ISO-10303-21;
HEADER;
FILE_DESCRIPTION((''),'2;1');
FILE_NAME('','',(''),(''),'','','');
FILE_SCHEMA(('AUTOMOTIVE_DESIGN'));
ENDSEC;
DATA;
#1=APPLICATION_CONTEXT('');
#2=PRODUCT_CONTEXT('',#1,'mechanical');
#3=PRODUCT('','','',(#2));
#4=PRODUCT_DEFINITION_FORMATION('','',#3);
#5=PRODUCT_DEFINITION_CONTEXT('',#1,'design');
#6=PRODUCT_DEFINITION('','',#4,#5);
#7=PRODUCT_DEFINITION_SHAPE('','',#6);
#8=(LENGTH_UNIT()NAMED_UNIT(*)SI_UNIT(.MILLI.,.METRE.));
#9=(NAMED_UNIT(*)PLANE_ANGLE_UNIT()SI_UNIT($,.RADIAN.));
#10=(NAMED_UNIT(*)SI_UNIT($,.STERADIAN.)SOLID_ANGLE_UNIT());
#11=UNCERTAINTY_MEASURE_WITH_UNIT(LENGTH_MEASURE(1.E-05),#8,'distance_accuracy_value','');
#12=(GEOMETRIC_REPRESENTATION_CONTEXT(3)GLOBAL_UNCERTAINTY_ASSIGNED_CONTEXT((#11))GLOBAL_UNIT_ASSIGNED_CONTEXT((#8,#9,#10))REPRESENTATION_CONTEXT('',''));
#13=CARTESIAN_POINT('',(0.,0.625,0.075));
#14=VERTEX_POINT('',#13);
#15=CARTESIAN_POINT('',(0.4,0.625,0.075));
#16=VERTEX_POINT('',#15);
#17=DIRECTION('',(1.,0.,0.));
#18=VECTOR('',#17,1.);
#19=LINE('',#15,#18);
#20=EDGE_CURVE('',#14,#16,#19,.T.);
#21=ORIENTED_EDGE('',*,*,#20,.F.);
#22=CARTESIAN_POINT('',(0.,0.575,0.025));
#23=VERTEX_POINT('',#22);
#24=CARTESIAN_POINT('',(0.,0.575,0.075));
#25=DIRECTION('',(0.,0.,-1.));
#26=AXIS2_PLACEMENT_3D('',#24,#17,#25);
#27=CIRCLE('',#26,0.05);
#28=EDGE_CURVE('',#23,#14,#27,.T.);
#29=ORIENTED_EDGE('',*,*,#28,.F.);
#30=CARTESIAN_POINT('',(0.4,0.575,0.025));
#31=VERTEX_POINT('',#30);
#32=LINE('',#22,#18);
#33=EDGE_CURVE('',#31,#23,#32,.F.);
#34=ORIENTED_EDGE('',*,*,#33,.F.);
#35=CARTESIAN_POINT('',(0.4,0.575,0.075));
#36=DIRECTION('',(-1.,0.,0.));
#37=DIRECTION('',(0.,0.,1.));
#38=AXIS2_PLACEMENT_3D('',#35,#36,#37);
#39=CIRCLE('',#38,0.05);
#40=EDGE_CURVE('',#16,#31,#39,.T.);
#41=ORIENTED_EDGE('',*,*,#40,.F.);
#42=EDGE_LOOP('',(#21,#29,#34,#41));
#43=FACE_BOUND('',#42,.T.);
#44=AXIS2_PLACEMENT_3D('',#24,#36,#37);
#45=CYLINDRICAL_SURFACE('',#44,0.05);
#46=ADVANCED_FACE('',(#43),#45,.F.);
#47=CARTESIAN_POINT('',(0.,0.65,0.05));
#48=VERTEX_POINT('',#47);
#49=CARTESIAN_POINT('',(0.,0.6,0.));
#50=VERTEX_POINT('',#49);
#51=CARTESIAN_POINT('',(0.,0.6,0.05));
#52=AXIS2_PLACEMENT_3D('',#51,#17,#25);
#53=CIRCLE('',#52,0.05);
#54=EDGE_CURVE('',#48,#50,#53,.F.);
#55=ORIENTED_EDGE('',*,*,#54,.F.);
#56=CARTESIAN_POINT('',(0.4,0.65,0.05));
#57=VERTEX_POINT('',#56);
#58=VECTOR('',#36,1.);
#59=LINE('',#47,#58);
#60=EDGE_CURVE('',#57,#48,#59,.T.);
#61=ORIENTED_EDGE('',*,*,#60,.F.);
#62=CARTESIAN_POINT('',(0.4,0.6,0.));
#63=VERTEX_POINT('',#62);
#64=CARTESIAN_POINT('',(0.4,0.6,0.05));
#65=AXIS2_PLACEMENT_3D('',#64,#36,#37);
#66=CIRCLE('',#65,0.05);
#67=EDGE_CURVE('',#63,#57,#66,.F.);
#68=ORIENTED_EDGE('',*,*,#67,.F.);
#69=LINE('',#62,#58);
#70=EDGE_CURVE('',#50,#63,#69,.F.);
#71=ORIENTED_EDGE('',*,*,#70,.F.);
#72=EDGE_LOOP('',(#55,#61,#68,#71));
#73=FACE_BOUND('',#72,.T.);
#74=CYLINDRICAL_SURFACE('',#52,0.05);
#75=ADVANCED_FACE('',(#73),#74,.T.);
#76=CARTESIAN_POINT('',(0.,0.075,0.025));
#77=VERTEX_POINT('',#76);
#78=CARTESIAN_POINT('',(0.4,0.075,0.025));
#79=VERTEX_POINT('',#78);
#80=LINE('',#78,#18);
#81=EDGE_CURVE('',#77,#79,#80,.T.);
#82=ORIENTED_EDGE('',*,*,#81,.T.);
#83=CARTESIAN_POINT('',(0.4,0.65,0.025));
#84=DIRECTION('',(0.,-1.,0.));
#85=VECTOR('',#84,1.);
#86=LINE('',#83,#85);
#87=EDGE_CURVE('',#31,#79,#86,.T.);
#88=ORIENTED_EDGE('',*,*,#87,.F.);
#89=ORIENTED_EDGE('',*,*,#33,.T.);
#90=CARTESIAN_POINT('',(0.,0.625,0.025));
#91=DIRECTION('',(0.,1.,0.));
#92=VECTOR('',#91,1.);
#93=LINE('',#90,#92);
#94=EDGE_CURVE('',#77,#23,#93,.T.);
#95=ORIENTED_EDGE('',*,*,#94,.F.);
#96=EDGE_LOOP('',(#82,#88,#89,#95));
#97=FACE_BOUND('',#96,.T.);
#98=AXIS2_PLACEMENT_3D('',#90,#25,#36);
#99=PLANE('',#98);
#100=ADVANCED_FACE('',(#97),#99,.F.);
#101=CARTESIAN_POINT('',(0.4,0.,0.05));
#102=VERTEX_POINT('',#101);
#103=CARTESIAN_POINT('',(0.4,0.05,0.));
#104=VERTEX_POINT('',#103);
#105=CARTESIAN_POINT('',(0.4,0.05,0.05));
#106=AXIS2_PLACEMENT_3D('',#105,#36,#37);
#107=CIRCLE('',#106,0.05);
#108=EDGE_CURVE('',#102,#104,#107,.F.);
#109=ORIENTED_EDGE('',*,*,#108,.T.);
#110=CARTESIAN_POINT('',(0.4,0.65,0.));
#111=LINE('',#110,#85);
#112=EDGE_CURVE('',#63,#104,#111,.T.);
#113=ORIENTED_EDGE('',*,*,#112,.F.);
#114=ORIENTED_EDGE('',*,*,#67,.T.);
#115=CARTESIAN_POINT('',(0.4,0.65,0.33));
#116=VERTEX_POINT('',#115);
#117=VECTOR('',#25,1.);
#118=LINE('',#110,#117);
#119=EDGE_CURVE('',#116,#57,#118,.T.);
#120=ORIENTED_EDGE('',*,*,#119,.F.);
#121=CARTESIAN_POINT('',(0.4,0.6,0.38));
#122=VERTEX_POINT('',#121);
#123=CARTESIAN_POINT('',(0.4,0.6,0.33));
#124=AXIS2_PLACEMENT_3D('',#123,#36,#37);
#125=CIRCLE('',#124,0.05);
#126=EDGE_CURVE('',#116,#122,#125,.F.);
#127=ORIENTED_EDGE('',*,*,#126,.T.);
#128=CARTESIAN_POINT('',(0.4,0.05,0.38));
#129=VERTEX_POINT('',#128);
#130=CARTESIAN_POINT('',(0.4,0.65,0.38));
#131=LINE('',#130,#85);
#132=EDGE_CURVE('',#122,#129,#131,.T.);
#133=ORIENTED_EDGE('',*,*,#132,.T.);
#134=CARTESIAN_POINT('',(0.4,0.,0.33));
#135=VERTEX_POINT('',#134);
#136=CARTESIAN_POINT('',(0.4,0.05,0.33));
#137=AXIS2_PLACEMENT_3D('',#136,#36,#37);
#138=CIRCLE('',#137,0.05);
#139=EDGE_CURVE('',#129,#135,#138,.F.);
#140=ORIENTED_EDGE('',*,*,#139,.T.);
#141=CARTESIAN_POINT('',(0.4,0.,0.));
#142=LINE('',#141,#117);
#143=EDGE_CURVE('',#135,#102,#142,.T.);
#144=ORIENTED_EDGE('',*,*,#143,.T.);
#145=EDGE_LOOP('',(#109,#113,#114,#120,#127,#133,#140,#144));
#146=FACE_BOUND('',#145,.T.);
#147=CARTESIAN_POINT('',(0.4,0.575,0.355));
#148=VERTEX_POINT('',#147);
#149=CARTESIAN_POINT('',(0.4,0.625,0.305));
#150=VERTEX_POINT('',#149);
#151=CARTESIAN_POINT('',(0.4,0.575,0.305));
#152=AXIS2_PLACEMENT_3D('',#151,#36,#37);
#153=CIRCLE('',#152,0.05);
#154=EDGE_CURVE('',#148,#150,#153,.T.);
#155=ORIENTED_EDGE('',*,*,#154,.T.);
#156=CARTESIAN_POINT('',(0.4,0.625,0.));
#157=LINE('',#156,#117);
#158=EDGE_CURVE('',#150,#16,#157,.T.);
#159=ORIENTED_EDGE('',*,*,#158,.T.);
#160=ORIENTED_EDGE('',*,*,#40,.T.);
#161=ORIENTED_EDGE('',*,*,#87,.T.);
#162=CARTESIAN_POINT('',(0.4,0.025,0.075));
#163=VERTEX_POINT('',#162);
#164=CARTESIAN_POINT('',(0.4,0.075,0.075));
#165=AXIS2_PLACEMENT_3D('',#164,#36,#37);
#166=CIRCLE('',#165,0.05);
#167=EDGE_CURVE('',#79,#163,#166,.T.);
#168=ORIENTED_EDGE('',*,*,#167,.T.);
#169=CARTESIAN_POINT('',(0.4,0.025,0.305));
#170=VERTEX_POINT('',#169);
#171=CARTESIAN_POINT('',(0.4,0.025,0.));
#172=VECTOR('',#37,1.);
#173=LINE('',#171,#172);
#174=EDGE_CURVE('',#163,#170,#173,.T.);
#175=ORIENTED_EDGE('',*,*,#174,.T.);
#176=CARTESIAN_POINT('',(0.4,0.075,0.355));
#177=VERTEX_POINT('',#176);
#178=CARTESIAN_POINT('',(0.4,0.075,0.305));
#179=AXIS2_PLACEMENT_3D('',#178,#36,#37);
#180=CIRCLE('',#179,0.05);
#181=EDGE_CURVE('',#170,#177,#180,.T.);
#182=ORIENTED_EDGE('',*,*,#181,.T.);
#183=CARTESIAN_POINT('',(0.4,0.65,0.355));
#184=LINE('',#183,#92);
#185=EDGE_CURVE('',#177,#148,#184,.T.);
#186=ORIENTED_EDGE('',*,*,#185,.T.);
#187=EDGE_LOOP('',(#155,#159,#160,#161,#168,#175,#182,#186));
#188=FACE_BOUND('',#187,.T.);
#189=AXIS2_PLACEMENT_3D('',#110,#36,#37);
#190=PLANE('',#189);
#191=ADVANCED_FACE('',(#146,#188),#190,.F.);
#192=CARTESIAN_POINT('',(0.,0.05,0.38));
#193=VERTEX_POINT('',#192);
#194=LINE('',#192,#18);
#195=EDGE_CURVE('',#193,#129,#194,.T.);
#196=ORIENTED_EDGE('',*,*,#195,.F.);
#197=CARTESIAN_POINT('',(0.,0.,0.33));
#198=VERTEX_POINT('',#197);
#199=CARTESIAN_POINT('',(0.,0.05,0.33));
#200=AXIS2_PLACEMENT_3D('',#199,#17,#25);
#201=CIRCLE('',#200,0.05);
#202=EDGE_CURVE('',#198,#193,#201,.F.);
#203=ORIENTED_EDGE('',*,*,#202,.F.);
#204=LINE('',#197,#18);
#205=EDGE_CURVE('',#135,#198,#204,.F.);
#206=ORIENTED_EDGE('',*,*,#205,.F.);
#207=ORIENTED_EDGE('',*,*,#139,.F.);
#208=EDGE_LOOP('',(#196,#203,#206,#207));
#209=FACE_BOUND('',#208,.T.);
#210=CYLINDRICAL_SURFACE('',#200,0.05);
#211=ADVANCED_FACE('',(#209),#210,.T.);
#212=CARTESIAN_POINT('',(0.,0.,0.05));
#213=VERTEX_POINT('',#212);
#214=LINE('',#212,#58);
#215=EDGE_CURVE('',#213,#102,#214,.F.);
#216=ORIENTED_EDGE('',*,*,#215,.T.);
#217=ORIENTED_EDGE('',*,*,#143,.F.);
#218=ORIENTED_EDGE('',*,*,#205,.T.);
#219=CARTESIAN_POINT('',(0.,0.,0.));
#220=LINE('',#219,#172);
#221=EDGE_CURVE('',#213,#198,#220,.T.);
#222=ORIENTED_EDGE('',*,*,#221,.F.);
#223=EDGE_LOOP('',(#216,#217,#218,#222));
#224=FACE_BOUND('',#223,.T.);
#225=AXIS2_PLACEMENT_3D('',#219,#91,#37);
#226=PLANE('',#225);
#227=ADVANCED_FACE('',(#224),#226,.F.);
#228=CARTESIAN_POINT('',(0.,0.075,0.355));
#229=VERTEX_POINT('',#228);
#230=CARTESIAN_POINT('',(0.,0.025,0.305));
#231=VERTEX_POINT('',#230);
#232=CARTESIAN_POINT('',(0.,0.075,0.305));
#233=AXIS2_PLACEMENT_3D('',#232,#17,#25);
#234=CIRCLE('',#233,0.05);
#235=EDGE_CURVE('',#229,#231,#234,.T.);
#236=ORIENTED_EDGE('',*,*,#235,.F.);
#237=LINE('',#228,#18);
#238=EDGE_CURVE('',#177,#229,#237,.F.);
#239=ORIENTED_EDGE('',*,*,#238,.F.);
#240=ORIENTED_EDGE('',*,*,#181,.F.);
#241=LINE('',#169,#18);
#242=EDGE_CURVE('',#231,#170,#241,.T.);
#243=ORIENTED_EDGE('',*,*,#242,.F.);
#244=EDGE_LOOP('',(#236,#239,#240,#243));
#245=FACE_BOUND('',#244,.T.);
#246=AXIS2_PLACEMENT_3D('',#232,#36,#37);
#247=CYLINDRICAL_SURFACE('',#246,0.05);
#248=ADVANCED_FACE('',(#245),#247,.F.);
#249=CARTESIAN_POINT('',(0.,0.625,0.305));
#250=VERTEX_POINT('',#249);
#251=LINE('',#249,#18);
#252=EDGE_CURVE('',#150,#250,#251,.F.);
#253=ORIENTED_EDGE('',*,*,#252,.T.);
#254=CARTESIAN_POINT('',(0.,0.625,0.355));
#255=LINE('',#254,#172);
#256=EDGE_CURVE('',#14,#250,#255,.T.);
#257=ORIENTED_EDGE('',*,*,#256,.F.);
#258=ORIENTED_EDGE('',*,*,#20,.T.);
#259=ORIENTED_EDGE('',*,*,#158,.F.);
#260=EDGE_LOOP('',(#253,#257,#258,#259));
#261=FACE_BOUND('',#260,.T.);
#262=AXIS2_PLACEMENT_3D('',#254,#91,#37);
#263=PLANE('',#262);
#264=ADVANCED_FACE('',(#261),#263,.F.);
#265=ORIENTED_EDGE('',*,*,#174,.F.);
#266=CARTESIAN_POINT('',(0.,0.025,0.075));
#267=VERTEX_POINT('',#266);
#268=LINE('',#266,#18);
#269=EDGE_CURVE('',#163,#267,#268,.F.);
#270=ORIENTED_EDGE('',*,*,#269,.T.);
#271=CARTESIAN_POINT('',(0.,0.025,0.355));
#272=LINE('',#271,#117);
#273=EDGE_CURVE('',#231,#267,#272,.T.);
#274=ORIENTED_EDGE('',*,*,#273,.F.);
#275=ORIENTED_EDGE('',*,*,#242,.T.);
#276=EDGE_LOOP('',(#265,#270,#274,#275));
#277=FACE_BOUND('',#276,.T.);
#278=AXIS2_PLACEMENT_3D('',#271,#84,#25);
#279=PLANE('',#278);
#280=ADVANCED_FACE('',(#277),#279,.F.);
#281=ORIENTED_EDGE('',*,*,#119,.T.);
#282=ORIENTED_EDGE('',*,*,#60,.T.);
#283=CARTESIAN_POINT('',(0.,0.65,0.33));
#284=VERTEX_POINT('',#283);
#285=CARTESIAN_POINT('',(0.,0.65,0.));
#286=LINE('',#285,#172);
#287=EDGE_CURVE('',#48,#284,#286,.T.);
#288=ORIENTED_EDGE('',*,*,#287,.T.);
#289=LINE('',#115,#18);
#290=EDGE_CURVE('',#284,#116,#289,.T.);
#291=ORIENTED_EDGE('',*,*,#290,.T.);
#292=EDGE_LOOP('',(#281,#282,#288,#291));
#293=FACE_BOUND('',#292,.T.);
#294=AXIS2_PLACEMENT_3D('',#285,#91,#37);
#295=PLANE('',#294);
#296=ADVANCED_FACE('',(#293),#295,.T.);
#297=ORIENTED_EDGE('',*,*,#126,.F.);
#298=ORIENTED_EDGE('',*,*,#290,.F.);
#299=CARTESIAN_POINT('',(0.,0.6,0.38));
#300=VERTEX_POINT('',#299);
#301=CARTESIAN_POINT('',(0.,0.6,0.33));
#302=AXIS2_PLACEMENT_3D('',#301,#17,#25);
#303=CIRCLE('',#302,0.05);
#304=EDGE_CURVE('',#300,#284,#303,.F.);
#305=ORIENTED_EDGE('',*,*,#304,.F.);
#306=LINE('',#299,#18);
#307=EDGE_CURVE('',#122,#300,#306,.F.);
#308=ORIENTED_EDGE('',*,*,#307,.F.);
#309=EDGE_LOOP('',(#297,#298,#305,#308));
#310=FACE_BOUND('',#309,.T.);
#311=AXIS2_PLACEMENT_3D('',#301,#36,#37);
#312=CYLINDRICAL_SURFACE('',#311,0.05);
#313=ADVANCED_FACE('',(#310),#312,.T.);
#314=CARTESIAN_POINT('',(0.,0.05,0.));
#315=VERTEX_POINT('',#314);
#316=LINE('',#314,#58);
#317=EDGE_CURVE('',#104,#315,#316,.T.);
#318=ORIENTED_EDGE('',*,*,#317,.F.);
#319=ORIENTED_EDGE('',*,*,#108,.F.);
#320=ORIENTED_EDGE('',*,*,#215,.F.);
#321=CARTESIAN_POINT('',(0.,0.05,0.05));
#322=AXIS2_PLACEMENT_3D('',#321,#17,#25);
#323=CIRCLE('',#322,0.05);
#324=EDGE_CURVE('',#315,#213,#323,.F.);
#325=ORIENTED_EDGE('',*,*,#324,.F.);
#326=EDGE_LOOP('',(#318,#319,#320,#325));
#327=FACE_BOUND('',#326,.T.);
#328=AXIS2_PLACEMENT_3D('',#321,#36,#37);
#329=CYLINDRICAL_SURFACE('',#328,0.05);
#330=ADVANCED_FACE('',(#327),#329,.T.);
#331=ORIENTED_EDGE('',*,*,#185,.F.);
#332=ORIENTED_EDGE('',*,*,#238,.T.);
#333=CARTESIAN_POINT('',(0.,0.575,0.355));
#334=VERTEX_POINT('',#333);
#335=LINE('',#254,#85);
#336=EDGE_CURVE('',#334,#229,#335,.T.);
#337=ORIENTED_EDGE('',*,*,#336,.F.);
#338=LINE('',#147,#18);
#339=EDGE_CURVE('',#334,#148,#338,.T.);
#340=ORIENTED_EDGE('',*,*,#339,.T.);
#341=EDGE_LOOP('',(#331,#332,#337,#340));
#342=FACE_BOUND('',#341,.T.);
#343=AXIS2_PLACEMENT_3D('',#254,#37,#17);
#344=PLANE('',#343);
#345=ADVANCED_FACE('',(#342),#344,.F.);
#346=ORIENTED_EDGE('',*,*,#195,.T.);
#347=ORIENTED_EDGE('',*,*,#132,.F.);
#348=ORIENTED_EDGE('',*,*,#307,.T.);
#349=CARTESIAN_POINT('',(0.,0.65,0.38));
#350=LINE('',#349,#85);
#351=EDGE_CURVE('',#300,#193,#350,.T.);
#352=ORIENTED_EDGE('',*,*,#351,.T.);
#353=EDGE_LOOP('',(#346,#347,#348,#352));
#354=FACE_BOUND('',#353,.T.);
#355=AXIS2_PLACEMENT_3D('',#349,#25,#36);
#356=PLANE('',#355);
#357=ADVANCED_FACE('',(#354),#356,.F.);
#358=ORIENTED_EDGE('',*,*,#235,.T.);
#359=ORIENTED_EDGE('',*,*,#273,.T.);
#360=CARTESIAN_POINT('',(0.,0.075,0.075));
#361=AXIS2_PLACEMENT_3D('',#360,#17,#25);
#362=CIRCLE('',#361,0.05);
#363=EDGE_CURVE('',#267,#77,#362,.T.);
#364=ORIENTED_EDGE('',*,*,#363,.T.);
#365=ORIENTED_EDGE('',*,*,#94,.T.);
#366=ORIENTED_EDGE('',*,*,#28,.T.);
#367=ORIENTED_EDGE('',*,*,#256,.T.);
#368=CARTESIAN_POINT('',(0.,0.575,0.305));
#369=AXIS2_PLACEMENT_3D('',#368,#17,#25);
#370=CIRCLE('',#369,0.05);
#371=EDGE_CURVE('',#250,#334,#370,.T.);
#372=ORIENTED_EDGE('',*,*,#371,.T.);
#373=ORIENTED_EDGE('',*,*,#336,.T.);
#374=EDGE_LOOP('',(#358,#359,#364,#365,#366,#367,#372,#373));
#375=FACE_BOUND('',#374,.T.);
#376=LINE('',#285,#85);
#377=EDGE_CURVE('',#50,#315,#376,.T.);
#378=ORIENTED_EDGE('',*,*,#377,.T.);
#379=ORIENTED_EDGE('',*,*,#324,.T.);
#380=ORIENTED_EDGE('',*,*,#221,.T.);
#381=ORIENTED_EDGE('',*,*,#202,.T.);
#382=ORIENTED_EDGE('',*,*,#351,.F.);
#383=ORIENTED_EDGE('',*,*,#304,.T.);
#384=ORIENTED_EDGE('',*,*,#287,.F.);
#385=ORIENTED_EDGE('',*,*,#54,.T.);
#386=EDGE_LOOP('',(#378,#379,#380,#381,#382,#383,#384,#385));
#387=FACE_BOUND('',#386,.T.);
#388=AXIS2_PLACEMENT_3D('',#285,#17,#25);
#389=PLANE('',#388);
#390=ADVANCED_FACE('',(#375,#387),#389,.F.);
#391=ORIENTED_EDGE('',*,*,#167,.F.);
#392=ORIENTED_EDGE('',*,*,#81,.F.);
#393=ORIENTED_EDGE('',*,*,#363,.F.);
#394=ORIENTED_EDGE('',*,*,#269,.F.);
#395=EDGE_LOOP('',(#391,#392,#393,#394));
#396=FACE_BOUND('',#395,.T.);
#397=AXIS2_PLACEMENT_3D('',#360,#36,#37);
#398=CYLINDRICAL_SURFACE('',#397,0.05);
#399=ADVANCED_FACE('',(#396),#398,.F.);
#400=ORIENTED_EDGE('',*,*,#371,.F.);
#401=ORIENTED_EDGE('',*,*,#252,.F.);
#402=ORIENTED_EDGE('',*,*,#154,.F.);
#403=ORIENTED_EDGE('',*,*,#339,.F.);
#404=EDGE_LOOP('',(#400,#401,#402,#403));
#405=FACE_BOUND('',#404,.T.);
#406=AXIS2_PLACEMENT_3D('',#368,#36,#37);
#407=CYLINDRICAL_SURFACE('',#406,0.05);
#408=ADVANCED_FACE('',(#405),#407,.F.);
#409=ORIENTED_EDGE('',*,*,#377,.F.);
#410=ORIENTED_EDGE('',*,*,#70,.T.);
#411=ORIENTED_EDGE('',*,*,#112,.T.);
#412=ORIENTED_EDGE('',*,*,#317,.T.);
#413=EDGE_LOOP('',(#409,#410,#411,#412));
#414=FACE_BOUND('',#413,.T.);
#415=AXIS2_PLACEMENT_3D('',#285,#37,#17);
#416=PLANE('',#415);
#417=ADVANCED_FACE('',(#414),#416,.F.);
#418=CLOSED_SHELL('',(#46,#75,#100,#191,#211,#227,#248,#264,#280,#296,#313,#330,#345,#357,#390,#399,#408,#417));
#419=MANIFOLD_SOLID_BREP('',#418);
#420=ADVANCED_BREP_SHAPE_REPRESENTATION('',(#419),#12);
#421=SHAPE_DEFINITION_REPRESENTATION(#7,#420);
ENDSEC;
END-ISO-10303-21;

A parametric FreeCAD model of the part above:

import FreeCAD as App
import Part
import Sketcher

V = App.Vector


def edges_at(feature, points):
    """Names of the edges that pass closest to the given points."""
    edges = feature.Shape.Edges
    near = lambda p: min(range(len(edges)), key=lambda i: edges[i].distToShape(Part.Vertex(*p))[0])
    return sorted({f"Edge{near(p) + 1}" for p in points})

doc = App.newDocument("Part")
body = doc.addObject("PartDesign::Body", "Body")

# Sketch on XZ plane
sketch1 = body.newObject("Sketcher::SketchObject", "Sketch")
sketch1.AttachmentSupport = (doc.getObject("XZ_Plane"), [""])
sketch1.MapMode = "FlatFace"
sketch1.addGeometry(Part.LineSegment(V(0, 0, 0), V(0, 0.38, 0)), False)
sketch1.addGeometry(Part.LineSegment(V(0, 0.38, 0), V(0.4, 0.38, 0)), False)
sketch1.addGeometry(Part.LineSegment(V(0.4, 0.38, 0), V(0.4, 0, 0)), False)
sketch1.addGeometry(Part.LineSegment(V(0.4, 0, 0), V(0, 0, 0)), False)
sketch1.addConstraint(Sketcher.Constraint("Coincident", 0, 2, 1, 1))
sketch1.addConstraint(Sketcher.Constraint("Coincident", 1, 2, 2, 1))
sketch1.addConstraint(Sketcher.Constraint("Coincident", 2, 2, 3, 1))
sketch1.addConstraint(Sketcher.Constraint("Coincident", 3, 2, 0, 1))
sketch1.addConstraint(Sketcher.Constraint("Vertical", 0))
sketch1.addConstraint(Sketcher.Constraint("Horizontal", 1))
sketch1.addConstraint(Sketcher.Constraint("Vertical", 2))
sketch1.addConstraint(Sketcher.Constraint("Horizontal", 3))
sketch1.addConstraint(Sketcher.Constraint("Coincident", 3, 2, -1, 1))
sketch1.addConstraint(Sketcher.Constraint("DistanceX", 1, 1, 1, 2, 0.4))
sketch1.addConstraint(Sketcher.Constraint("DistanceY", 0, 1, 0, 2, 0.38))
pad1 = body.newObject("PartDesign::Pad", "Pad")
pad1.Profile = sketch1
pad1.Length = 0.65
pad1.Reversed = True

# Sketch on YZ plane
sketch2 = body.newObject("Sketcher::SketchObject", "Sketch001")
sketch2.AttachmentSupport = (doc.getObject("YZ_Plane"), [""])
sketch2.MapMode = "FlatFace"
sketch2.AttachmentOffset = App.Placement(V(0, 0, 0.4), App.Rotation())
sketch2.addGeometry(Part.LineSegment(V(0.625, 0.355, 0), V(0.025, 0.355, 0)), False)
sketch2.addGeometry(Part.LineSegment(V(0.025, 0.355, 0), V(0.025, 0.025, 0)), False)
sketch2.addGeometry(Part.LineSegment(V(0.025, 0.025, 0), V(0.625, 0.025, 0)), False)
sketch2.addGeometry(Part.LineSegment(V(0.625, 0.025, 0), V(0.625, 0.355, 0)), False)
sketch2.addConstraint(Sketcher.Constraint("Coincident", 0, 2, 1, 1))
sketch2.addConstraint(Sketcher.Constraint("Coincident", 1, 2, 2, 1))
sketch2.addConstraint(Sketcher.Constraint("Coincident", 2, 2, 3, 1))
sketch2.addConstraint(Sketcher.Constraint("Coincident", 3, 2, 0, 1))
sketch2.addConstraint(Sketcher.Constraint("Horizontal", 0))
sketch2.addConstraint(Sketcher.Constraint("Vertical", 1))
sketch2.addConstraint(Sketcher.Constraint("Horizontal", 2))
sketch2.addConstraint(Sketcher.Constraint("Vertical", 3))
sketch2.addConstraint(Sketcher.Constraint("DistanceX", 0, 2, 0, 1, 0.6))
sketch2.addConstraint(Sketcher.Constraint("DistanceY", 1, 2, 1, 1, 0.33))
sketch2.addConstraint(Sketcher.Constraint("DistanceX", -1, 1, 0, 2, 0.025))
sketch2.addConstraint(Sketcher.Constraint("DistanceY", -1, 1, 0, 2, 0.355))
pocket1 = body.newObject("PartDesign::Pocket", "Pocket")
pocket1.Profile = sketch2
pocket1.Type = "ThroughAll"
pocket1.Midplane = True
doc.recompute()

fillet = body.newObject("PartDesign::Fillet", "Fillet")
fillet.Base = (pocket1, edges_at(pocket1, [
    (0.2, 0.65, 0),
    (0.2, 0.025, 0.355),
    (0.2, 0.625, 0.355),
    (0.2, 0.625, 0.025),
    (0.2, 0.025, 0.025),
    (0.2, 0, 0),
    (0.2, 0, 0.38),
    (0.2, 0.65, 0.38),
]))
fillet.Radius = 0.05

doc.recompute()
